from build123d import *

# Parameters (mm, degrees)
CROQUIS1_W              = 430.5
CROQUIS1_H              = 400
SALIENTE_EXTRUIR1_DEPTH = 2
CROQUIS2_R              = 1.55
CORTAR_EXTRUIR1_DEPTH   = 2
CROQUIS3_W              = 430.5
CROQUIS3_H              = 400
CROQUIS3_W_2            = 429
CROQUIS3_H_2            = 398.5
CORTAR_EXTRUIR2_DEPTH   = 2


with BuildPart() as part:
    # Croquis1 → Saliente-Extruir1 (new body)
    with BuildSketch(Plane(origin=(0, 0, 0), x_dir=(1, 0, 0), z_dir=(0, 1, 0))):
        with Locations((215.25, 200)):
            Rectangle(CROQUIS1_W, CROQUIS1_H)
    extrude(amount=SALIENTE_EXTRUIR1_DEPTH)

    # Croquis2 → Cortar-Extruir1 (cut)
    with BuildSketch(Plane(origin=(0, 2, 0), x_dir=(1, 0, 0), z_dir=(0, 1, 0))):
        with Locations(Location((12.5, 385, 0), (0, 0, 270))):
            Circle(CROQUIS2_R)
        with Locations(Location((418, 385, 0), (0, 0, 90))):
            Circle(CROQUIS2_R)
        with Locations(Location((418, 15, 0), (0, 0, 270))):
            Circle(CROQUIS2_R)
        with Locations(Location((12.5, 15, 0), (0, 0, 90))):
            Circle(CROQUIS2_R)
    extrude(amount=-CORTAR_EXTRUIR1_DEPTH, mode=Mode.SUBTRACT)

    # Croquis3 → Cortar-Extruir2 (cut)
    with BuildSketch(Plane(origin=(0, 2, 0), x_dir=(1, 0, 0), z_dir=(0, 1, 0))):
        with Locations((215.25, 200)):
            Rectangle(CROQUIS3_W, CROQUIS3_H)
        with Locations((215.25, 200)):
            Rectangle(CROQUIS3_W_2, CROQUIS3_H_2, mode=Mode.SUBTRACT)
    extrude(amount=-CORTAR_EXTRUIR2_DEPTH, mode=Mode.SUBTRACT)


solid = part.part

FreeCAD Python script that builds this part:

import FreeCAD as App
import Part
import Sketcher

V = App.Vector

doc = App.newDocument("Part")
params = doc.addObject("Spreadsheet::Sheet", "Params")
for row, (alias, value) in enumerate([
    ("sketch1_height", "400 mm"),
    ("sketch1_width", "430.5 mm"),
    ("pad1_length", "2 mm"),
    ("sketch2_diameter", "3.1 mm"),
    ("pocket1_length", "2 mm"),
    ("sketch3_width", "429 mm"),
    ("sketch3_height", "400 mm"),
    ("sketch3_width2", "430.5 mm"),
    ("sketch3_height2", "398.5 mm"),
    ("pocket2_length", "2 mm"),
], start=1):
    params.set(f"A{row}", alias)
    params.set(f"B{row}", "=" + value)
    params.setAlias(f"B{row}", alias)

body = doc.addObject("PartDesign::Body", "Body")

# Sketch on XZ plane
sketch1 = doc.addObject("Sketcher::SketchObject", "Sketch")
body.addObject(sketch1)
sketch1.AttachmentSupport = (doc.XZ_Plane, [""])
sketch1.MapMode = "FlatFace"
sketch1.addGeometry([
    Part.LineSegment(V(0, -400, 0), V(0, 0, 0)),
    Part.LineSegment(V(0, 0, 0), V(430, 0, 0)),
    Part.LineSegment(V(430, 0, 0), V(430, -400, 0)),
    Part.LineSegment(V(430, -400, 0), V(0, -400, 0)),
], False)
sketch1.addConstraint([
    Sketcher.Constraint("Coincident", 0, 2, 1, 1),
    Sketcher.Constraint("Coincident", 1, 2, 2, 1),
    Sketcher.Constraint("Coincident", 2, 2, 3, 1),
    Sketcher.Constraint("Coincident", 3, 2, 0, 1),
    Sketcher.Constraint("Vertical", 0),
    Sketcher.Constraint("Horizontal", 1),
    Sketcher.Constraint("Vertical", 2),
    Sketcher.Constraint("Horizontal", 3),
    Sketcher.Constraint("Coincident", 0, 2, -1, 1),
    Sketcher.Constraint("DistanceY", 0, 1, 0, 2, 400.0),
    Sketcher.Constraint("DistanceX", 1, 1, 1, 2, 430.5),
])
sketch1.setExpression("Constraints[9]", "Params.sketch1_height")
sketch1.setExpression("Constraints[10]", "Params.sketch1_width")
pad1 = doc.addObject("PartDesign::Pad", "Pad")
body.addObject(pad1)
pad1.Profile = sketch1
pad1.setExpression("Length", "Params.pad1_length")
pad1.Reversed = True

# Sketch on XZ plane
sketch2 = doc.addObject("Sketcher::SketchObject", "Sketch001")
body.addObject(sketch2)
sketch2.AttachmentSupport = (doc.XZ_Plane, [""])
sketch2.MapMode = "FlatFace"
sketch2.AttachmentOffset = App.Placement(V(0, 0, -2), App.Rotation())
sketch2.addGeometry([
    Part.Circle(V(12.5, -385, 0), V(0, 0, 1), 1.6),
    Part.Circle(V(418, -385, 0), V(0, 0, 1), 1.6),
    Part.Circle(V(418, -15, 0), V(0, 0, 1), 1.6),
    Part.Circle(V(12.5, -15, 0), V(0, 0, 1), 1.6),
], False)
sketch2.addConstraint([
    Sketcher.Constraint("Equal", 0, 1),
    Sketcher.Constraint("Equal", 1, 2),
    Sketcher.Constraint("Equal", 2, 3),
    Sketcher.Constraint("Horizontal", 0, 3, 1, 3),
    Sketcher.Constraint("Horizontal", 2, 3, 3, 3),
    Sketcher.Constraint("Vertical", 1, 3, 2, 3),
    Sketcher.Constraint("Vertical", 0, 3, 3, 3),
    Sketcher.Constraint("Diameter", 0, 3.1),
    Sketcher.Constraint("DistanceY", 0, 3, -1, 1, 385.0),
    Sketcher.Constraint("DistanceX", -1, 1, 1, 3, 418.0),
    Sketcher.Constraint("DistanceY", 2, 3, -1, 1, 15.0),
    Sketcher.Constraint("DistanceX", -1, 1, 0, 3, 12.5),
])
sketch2.setExpression("Constraints[7]", "Params.sketch2_diameter")
pocket1 = doc.addObject("PartDesign::Pocket", "Pocket")
body.addObject(pocket1)
pocket1.Profile = sketch2
pocket1.setExpression("Length", "Params.pocket1_length")
pocket1.Reversed = True

# Sketch on XZ plane
sketch3 = doc.addObject("Sketcher::SketchObject", "Sketch002")
body.addObject(sketch3)
sketch3.AttachmentSupport = (doc.XZ_Plane, [""])
sketch3.MapMode = "FlatFace"
sketch3.AttachmentOffset = App.Placement(V(0, 0, -2), App.Rotation())
sketch3.addGeometry([
    Part.LineSegment(V(0, -400, 0), V(0, 0, 0)),  # 0
    Part.LineSegment(V(0, 0, 0), V(430, 0, 0)),  # 1
    Part.LineSegment(V(430, 0, 0), V(430, -400, 0)),  # 2
    Part.LineSegment(V(430, -400, 0), V(0, -400, 0)),  # 3
    Part.LineSegment(V(430, -1, 0), V(1, -1, 0)),  # 4
    Part.LineSegment(V(1, -1, 0), V(1, -399, 0)),  # 5
    Part.LineSegment(V(1, -399, 0), V(430, -399, 0)),  # 6
    Part.LineSegment(V(430, -399, 0), V(430, -1, 0)),  # 7
], False)
sketch3.addConstraint([
    Sketcher.Constraint("Coincident", 0, 2, 1, 1),
    Sketcher.Constraint("Coincident", 1, 2, 2, 1),
    Sketcher.Constraint("Coincident", 2, 2, 3, 1),
    Sketcher.Constraint("Coincident", 3, 2, 0, 1),
    Sketcher.Constraint("Coincident", 4, 2, 5, 1),
    Sketcher.Constraint("Coincident", 5, 2, 6, 1),
    Sketcher.Constraint("Coincident", 6, 2, 7, 1),
    Sketcher.Constraint("Coincident", 7, 2, 4, 1),
    Sketcher.Constraint("Vertical", 0),
    Sketcher.Constraint("Horizontal", 1),
    Sketcher.Constraint("Vertical", 2),
    Sketcher.Constraint("Horizontal", 3),
    Sketcher.Constraint("Horizontal", 4),
    Sketcher.Constraint("Vertical", 5),
    Sketcher.Constraint("Horizontal", 6),
    Sketcher.Constraint("Vertical", 7),
    Sketcher.Constraint("Coincident", 0, 2, -1, 1),
    Sketcher.Constraint("DistanceX", 4, 2, 4, 1, 429.0),
    Sketcher.Constraint("DistanceY", 0, 1, 0, 2, 400.0),
    Sketcher.Constraint("DistanceX", 1, 1, 1, 2, 430.5),
    Sketcher.Constraint("DistanceY", 5, 2, 5, 1, 398.5),
    Sketcher.Constraint("DistanceX", -1, 1, 4, 2, 0.75),
    Sketcher.Constraint("DistanceY", 4, 2, -1, 1, 0.75),
])
sketch3.setExpression("Constraints[17]", "Params.sketch3_width")
sketch3.setExpression("Constraints[18]", "Params.sketch3_height")
sketch3.setExpression("Constraints[19]", "Params.sketch3_width2")
sketch3.setExpression("Constraints[20]", "Params.sketch3_height2")
pocket2 = doc.addObject("PartDesign::Pocket", "Pocket001")
body.addObject(pocket2)
pocket2.Profile = sketch3
pocket2.setExpression("Length", "Params.pocket2_length")
pocket2.Reversed = True

doc.recompute()
